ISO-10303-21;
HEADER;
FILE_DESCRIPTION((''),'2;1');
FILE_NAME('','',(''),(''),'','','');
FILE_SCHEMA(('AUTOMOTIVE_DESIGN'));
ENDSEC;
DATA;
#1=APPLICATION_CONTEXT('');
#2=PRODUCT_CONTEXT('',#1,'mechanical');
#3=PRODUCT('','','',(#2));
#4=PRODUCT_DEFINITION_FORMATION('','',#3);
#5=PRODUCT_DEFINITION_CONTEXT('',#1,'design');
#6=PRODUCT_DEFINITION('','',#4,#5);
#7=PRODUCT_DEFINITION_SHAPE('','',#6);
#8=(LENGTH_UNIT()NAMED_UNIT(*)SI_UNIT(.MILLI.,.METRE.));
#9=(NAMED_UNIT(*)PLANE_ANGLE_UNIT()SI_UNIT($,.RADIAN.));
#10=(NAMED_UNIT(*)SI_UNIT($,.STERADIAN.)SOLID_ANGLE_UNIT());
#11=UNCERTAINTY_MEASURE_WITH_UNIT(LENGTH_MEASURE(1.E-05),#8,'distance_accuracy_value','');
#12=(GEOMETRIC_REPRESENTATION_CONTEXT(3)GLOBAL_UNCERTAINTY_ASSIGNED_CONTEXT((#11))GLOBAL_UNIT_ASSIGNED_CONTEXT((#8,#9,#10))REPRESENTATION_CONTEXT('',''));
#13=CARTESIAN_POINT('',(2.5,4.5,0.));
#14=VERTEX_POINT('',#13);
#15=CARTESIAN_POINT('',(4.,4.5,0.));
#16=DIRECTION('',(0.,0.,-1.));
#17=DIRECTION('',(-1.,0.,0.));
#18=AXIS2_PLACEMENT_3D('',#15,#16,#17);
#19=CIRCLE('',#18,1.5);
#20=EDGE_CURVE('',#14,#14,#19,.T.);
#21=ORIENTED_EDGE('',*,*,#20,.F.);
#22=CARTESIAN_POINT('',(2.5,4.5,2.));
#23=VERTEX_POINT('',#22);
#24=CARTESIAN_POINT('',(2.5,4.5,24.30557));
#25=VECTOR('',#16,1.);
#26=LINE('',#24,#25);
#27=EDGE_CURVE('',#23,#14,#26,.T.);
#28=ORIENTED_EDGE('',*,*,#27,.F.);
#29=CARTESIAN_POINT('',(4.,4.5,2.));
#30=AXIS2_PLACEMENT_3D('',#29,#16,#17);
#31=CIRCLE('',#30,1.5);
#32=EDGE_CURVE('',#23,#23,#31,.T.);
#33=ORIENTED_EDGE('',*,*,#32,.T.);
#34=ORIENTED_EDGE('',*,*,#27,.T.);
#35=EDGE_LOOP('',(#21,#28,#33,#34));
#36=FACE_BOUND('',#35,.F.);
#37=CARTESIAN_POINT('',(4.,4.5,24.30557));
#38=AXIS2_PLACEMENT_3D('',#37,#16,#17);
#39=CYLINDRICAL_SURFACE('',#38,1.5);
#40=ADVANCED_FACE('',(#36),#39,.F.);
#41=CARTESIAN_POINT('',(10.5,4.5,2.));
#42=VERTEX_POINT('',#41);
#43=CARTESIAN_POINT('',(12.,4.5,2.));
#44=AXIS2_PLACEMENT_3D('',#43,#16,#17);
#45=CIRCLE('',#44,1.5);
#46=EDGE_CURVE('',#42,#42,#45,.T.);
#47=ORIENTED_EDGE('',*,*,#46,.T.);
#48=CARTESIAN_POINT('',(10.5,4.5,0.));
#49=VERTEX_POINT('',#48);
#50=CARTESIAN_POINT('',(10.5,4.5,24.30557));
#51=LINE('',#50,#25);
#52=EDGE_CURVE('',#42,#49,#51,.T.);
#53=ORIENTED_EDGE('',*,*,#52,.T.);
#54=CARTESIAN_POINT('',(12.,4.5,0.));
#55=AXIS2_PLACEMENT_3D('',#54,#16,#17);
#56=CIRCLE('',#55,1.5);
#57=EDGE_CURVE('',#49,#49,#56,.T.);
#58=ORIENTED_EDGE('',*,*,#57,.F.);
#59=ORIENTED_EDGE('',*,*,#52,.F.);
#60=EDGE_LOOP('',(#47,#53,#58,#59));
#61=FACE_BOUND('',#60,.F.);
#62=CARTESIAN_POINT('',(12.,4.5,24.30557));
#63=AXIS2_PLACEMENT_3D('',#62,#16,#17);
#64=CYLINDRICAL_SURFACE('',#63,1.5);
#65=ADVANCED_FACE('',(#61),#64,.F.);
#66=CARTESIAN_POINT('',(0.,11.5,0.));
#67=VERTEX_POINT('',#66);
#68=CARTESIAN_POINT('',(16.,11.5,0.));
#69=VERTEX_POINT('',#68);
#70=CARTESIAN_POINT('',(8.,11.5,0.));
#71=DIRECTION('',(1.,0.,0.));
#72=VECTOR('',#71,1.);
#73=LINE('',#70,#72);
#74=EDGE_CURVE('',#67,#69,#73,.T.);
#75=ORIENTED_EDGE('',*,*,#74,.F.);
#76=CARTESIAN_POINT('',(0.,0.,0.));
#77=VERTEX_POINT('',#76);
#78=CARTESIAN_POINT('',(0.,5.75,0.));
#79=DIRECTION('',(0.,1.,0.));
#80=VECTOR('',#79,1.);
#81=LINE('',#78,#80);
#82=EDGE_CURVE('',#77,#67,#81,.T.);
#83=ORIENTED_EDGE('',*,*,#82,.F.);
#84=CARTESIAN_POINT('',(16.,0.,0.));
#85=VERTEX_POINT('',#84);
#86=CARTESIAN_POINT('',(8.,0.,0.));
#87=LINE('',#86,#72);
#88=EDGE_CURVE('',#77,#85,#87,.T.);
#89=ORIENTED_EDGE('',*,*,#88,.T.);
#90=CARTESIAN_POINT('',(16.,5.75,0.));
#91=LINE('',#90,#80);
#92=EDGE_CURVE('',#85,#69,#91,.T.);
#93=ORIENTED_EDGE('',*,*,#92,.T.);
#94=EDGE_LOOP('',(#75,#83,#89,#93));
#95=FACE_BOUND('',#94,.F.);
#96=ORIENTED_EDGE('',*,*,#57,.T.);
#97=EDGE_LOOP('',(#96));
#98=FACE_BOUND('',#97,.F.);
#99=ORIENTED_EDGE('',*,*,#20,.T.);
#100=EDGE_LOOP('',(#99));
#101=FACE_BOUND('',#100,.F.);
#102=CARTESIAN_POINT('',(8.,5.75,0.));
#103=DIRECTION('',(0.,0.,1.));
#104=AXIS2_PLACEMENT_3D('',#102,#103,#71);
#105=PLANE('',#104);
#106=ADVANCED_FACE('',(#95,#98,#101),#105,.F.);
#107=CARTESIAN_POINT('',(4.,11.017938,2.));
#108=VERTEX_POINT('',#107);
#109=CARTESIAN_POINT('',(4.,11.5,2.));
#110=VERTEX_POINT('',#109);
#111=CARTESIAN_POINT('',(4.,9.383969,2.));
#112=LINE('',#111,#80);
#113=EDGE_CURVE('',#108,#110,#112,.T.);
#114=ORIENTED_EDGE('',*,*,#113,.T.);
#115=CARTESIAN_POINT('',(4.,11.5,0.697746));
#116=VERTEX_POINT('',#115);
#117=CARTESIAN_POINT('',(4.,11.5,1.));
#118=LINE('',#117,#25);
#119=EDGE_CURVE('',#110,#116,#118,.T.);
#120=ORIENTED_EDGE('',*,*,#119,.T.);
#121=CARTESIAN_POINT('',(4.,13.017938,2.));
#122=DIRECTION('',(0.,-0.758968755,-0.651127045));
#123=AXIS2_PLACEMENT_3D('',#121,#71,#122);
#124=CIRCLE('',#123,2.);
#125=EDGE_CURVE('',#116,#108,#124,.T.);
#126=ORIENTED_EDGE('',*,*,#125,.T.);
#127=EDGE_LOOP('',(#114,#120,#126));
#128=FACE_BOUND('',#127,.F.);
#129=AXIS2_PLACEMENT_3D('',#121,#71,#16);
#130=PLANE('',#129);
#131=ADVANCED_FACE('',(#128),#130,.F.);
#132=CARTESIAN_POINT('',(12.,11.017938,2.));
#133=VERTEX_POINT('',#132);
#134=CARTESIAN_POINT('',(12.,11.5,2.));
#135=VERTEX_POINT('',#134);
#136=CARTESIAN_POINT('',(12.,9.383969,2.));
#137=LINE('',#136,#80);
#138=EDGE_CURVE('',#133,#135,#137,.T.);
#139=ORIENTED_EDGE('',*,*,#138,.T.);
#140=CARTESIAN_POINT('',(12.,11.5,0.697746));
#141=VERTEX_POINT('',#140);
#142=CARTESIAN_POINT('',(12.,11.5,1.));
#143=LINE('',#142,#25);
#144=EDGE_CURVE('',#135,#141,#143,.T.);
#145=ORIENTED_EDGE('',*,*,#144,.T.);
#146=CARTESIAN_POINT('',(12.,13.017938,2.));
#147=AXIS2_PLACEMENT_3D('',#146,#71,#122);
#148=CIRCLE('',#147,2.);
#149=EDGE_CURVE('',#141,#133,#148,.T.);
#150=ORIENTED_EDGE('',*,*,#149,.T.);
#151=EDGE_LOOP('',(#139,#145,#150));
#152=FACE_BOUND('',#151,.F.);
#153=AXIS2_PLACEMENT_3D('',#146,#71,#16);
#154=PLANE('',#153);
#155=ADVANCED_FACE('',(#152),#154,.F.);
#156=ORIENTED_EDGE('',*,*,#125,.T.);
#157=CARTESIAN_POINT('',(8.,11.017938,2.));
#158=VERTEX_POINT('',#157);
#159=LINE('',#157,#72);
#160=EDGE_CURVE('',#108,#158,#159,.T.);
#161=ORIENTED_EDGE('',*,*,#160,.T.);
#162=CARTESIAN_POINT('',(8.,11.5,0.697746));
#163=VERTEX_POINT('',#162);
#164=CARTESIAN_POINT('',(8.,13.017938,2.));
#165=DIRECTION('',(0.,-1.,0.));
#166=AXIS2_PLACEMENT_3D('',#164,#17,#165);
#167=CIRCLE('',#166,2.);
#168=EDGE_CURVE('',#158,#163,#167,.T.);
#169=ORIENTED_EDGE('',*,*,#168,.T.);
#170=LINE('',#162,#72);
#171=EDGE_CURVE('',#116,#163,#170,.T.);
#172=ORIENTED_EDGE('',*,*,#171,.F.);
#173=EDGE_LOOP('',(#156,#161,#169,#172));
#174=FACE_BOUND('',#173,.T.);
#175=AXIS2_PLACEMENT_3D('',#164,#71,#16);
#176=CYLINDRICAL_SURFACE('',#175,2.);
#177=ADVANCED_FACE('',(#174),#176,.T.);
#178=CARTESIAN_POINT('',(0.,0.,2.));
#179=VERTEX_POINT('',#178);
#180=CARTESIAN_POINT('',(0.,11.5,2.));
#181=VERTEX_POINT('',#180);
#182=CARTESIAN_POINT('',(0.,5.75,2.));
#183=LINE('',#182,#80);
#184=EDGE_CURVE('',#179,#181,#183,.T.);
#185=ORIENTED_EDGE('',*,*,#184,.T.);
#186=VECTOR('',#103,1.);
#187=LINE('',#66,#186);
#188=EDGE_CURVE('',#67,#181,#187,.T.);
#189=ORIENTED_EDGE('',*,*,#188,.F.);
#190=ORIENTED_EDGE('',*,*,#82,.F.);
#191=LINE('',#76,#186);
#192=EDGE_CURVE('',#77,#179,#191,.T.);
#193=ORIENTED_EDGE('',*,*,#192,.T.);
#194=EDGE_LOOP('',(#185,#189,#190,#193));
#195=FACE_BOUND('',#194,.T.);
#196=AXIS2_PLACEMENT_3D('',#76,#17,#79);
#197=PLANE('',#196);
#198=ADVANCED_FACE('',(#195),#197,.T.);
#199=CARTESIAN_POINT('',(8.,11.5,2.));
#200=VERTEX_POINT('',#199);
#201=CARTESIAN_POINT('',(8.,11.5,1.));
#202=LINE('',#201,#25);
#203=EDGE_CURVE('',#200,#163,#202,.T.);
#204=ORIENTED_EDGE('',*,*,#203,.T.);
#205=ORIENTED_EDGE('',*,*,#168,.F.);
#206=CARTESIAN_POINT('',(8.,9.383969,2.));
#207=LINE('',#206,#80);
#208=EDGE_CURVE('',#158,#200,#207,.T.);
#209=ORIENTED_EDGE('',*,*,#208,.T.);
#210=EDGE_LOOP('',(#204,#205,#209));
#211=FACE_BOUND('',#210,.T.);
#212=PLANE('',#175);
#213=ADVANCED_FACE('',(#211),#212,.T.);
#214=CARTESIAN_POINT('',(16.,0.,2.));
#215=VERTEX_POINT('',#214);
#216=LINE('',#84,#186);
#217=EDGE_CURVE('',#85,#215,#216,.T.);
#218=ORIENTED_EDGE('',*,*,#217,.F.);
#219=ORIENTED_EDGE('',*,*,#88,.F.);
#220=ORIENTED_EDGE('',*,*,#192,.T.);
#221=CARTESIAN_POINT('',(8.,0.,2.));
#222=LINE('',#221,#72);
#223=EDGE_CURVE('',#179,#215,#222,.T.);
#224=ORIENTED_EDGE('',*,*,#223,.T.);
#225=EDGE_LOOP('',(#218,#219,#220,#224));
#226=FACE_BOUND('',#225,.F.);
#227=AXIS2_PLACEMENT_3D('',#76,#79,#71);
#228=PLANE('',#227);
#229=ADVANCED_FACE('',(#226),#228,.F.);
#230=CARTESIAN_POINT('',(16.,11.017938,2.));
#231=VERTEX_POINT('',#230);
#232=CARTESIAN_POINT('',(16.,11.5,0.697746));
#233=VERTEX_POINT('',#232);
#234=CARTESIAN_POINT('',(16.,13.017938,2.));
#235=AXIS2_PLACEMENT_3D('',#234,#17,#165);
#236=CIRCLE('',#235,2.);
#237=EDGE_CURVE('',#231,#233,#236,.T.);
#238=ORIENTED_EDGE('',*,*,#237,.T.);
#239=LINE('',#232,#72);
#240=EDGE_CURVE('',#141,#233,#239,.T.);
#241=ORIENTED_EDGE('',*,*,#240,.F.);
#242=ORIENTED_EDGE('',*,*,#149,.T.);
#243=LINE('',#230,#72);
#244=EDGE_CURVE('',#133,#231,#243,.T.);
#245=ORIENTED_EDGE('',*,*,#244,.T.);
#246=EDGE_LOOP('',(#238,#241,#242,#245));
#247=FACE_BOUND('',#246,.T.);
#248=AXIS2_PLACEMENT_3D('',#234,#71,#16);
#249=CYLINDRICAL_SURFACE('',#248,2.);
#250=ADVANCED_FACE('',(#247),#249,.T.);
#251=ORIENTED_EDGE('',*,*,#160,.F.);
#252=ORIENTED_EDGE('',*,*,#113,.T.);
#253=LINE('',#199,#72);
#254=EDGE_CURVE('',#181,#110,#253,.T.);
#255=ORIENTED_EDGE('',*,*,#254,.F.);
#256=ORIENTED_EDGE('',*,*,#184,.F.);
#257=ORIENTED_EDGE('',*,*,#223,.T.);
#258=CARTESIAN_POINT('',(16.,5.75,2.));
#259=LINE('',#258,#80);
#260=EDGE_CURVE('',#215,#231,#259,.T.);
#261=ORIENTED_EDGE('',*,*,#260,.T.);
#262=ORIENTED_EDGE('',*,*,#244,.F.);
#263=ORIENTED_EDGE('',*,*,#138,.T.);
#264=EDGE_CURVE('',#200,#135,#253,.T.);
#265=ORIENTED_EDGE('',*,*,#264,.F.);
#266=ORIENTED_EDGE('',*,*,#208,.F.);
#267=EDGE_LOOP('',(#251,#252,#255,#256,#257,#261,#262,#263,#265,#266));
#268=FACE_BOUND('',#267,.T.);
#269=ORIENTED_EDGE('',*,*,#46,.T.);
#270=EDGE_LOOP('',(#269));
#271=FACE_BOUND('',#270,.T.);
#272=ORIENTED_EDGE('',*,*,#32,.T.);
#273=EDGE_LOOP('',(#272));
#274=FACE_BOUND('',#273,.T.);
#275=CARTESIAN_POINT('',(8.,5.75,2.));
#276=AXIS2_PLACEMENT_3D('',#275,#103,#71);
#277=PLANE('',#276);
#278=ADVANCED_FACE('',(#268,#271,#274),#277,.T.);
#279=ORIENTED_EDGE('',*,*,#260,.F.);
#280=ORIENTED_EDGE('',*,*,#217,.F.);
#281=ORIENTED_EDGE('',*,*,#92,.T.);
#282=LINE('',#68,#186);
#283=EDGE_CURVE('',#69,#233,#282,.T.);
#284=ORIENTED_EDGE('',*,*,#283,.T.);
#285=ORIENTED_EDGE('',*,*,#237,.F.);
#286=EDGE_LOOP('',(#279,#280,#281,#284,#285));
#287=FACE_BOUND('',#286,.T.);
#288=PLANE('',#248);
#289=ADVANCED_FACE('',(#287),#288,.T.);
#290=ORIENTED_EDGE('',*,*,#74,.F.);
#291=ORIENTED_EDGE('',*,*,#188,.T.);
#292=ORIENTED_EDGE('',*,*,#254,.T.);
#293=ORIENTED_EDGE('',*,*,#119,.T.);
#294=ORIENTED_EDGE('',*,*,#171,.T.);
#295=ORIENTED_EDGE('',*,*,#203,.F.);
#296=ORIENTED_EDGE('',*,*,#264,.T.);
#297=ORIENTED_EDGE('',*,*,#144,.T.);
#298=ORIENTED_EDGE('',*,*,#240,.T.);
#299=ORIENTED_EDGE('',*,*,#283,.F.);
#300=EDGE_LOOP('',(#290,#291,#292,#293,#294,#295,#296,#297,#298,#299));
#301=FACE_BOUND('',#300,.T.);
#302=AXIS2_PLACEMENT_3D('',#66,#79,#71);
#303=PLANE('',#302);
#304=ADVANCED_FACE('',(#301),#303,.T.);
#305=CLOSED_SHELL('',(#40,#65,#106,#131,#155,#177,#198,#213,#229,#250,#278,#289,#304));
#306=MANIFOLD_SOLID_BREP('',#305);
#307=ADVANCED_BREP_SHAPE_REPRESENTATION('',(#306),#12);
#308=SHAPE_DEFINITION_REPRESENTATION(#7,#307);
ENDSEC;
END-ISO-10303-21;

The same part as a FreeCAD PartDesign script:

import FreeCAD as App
import Part
import Sketcher
from FreeCAD import Vector
Q = App.Units.Quantity


def add_polygon(sketch, points):
    """Adds a closed chain of lines whose ends are joined by coincident constraints."""
    first, n = sketch.GeometryCount, len(points)
    for a, b in zip(points, points[1:] + points[:1]):
        sketch.addGeometry(Part.LineSegment(App.Vector(*a, 0), App.Vector(*b, 0)), False)
    for i in range(n):
        sketch.addConstraint(Sketcher.Constraint("Coincident", first + i, 2, first + (i + 1) % n, 1))

doc = App.newDocument("Part")
body = doc.addObject("PartDesign::Body", "Body")

# Sketch on XY plane
sketch1 = doc.addObject("Sketcher::SketchObject", "Sketch")
body.addObject(sketch1)
sketch1.AttachmentSupport = (doc.XY_Plane, [""])
sketch1.MapMode = "FlatFace"
add_polygon(sketch1, [(0, 11.5), (0, 0), (16, 0), (16, 11.5)])  # lines 0-3
sketch1.addConstraint(Sketcher.Constraint("Vertical", 0))
sketch1.addConstraint(Sketcher.Constraint("Horizontal", 1))
sketch1.addConstraint(Sketcher.Constraint("Vertical", 2))
sketch1.addConstraint(Sketcher.Constraint("Horizontal", 3))
sketch1.addConstraint(Sketcher.Constraint("Coincident", 0, 2, -1, 1))
sketch1.addConstraint(Sketcher.Constraint("DistanceX", 1, 1, 1, 2, Q("16 mm")))
sketch1.addConstraint(Sketcher.Constraint("DistanceY", 0, 2, 0, 1, Q("11.5 mm")))
pad1 = doc.addObject("PartDesign::Pad", "Pad")
body.addObject(pad1)
pad1.Profile = sketch1
pad1.Length = 2

# Sketch on YZ plane
sketch2 = doc.addObject("Sketcher::SketchObject", "Sketch001")
body.addObject(sketch2)
sketch2.AttachmentSupport = (doc.YZ_Plane, [""])
sketch2.MapMode = "FlatFace"
sketch2.AttachmentOffset = App.Placement(Vector(0, 0, 16), App.Rotation())
sketch2.addGeometry(Part.Circle(Vector(13.017938, 2, 0), Vector(0, 0, 1), 2), False)
sketch2.addConstraint(Sketcher.Constraint("Diameter", 0, Q("4 mm")))
sketch2.addConstraint(Sketcher.Constraint("DistanceY", -1, 1, 0, 3, Q("2 mm")))
sketch2.addConstraint(Sketcher.Constraint("DistanceX", -1, 1, 0, 3, Q("13.017938 mm")))
pad2 = doc.addObject("PartDesign::Pad", "Pad001")
body.addObject(pad2)
pad2.Profile = sketch2
pad2.Length = 4
pad2.Reversed = True
doc.recompute()

linearpattern = doc.addObject("PartDesign::LinearPattern", "LinearPattern")
body.addObject(linearpattern)
linearpattern.Originals = [pad2]
linearpattern.Direction = (doc.X_Axis, [""])
linearpattern.Mode = "offset"
linearpattern.Offset = 8
linearpattern.Occurrences = 2
linearpattern.Reversed = True
body.Tip = linearpattern

# Sketch on XY plane
sketch3 = doc.addObject("Sketcher::SketchObject", "Sketch002")
body.addObject(sketch3)
sketch3.AttachmentSupport = (doc.XY_Plane, [""])
sketch3.MapMode = "FlatFace"
sketch3.AttachmentOffset = App.Placement(Vector(0, 0, 2), App.Rotation())
sketch3.addGeometry(Part.Circle(Vector(4, 4.5, 0), Vector(0, 0, 1), 1.5), False)
sketch3.addGeometry(Part.Circle(Vector(12, 4.5, 0), Vector(0, 0, 1), 1.5), False)
sketch3.addConstraint(Sketcher.Constraint("Equal", 0, 1))
sketch3.addConstraint(Sketcher.Constraint("Horizontal", 0, 3, 1, 3))
sketch3.addConstraint(Sketcher.Constraint("Diameter", 0, Q("3 mm")))
sketch3.addConstraint(Sketcher.Constraint("DistanceX", -1, 1, 0, 3, Q("4 mm")))
sketch3.addConstraint(Sketcher.Constraint("DistanceX", -1, 1, 1, 3, Q("12 mm")))
sketch3.addConstraint(Sketcher.Constraint("DistanceY", -1, 1, 0, 3, Q("4.5 mm")))
doc.recompute()
hole = doc.addObject("PartDesign::Hole", "Hole")
body.addObject(hole)
hole.Profile = sketch3
hole.ThreadType = "None"
hole.Diameter = 3
hole.DepthType = "ThroughAll"

doc.recompute()
